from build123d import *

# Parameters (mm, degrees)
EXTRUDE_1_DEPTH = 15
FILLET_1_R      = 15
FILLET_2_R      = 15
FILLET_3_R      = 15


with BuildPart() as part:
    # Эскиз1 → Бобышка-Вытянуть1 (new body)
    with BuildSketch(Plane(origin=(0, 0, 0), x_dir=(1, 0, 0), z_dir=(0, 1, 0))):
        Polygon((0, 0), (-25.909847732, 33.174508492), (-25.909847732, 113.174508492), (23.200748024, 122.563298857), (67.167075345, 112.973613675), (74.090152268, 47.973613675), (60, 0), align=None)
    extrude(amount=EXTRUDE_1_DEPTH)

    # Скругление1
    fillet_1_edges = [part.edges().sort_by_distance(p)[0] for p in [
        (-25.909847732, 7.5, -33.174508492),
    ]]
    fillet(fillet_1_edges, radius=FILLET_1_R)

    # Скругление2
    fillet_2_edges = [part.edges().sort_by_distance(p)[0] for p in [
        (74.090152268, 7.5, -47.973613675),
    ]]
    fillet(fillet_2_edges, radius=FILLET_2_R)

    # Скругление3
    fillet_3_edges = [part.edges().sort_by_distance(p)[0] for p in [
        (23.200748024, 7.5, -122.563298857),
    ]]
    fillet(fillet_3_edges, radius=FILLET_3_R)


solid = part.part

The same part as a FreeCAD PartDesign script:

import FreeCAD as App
import Part
import Sketcher
from FreeCAD import Vector


def edges_at(feature, points):
    """Names of the edges that pass closest to the given points."""
    edges = feature.Shape.Edges
    near = lambda p: min(range(len(edges)), key=lambda i: edges[i].distToShape(Part.Vertex(*p))[0])
    return sorted({f"Edge{near(p) + 1}" for p in points})

doc = App.newDocument("Part")
body = doc.addObject("PartDesign::Body", "Body")

# Sketch on XZ plane
sketch1 = body.newObject("Sketcher::SketchObject", "Sketch")
sketch1.AttachmentSupport = (doc.getObject("XZ_Plane"), [""])
sketch1.MapMode = "FlatFace"
sketch1.addGeometry([
    Part.LineSegment(Vector(-25.909848, -33.174508, 0), Vector(0, 0, 0)),  # 0
    Part.LineSegment(Vector(0, 0, 0), Vector(60, 0, 0)),  # 1
    Part.LineSegment(Vector(60, 0, 0), Vector(74.090152, -47.973614, 0)),  # 2
    Part.LineSegment(Vector(74.090152, -47.973614, 0), Vector(67.167075, -112.973614, 0)),  # 3
    Part.LineSegment(Vector(67.167075, -112.973614, 0), Vector(23.200748, -122.563299, 0)),  # 4
    Part.LineSegment(Vector(23.200748, -122.563299, 0), Vector(-25.909848, -113.174508, 0)),  # 5
    Part.LineSegment(Vector(-25.909848, -113.174508, 0), Vector(-25.909848, -33.174508, 0)),  # 6
], False)
sketch1.addConstraint([
    Sketcher.Constraint("Coincident", 0, 2, 1, 1),
    Sketcher.Constraint("Coincident", 1, 2, 2, 1),
    Sketcher.Constraint("Coincident", 2, 2, 3, 1),
    Sketcher.Constraint("Coincident", 3, 2, 4, 1),
    Sketcher.Constraint("Coincident", 4, 2, 5, 1),
    Sketcher.Constraint("Coincident", 5, 2, 6, 1),
    Sketcher.Constraint("Coincident", 6, 2, 0, 1),
    Sketcher.Constraint("Horizontal", 1),
    Sketcher.Constraint("Vertical", 6),
    Sketcher.Constraint("Coincident", 0, 2, -1, 1),
    Sketcher.Constraint("Equal", 2, 5),
    Sketcher.Constraint("DistanceX", 1, 1, 1, 2, 60.0),
    Sketcher.Constraint("DistanceY", 6, 1, 6, 2, 80.0),
    Sketcher.Constraint("Distance", 2, 50.0),
    Sketcher.Constraint("Distance", 4, 45.0),
    Sketcher.Constraint("DistanceY", 3, 2, 2, 2, 65.0),
    Sketcher.Constraint("DistanceX", 5, 2, 2, 2, 100.0),
    Sketcher.Constraint("DistanceY", 4, 2, -1, 1, 122.563299),
    Sketcher.Constraint("DistanceX", -1, 1, 4, 2, 23.200748),
    Sketcher.Constraint("DistanceY", 5, 2, -1, 1, 113.174508),
])
pad1 = body.newObject("PartDesign::Pad", "Pad")
pad1.Profile = sketch1
pad1.Length = 15
pad1.Reversed = True
doc.recompute()

fillet = body.newObject("PartDesign::Fillet", "Fillet")
fillet.Base = (pad1, edges_at(pad1, [(-25.91, 7.5, -33.175)]))
fillet.Radius = 15
doc.recompute()

fillet2 = body.newObject("PartDesign::Fillet", "Fillet001")
fillet2.Base = (fillet, edges_at(fillet, [(74.09, 7.5, -47.974)]))
fillet2.Radius = 15
doc.recompute()

fillet3 = body.newObject("PartDesign::Fillet", "Fillet002")
fillet3.Base = (fillet2, edges_at(fillet2, [(23.201, 7.5, -122.563)]))
fillet3.Radius = 15

doc.recompute()
